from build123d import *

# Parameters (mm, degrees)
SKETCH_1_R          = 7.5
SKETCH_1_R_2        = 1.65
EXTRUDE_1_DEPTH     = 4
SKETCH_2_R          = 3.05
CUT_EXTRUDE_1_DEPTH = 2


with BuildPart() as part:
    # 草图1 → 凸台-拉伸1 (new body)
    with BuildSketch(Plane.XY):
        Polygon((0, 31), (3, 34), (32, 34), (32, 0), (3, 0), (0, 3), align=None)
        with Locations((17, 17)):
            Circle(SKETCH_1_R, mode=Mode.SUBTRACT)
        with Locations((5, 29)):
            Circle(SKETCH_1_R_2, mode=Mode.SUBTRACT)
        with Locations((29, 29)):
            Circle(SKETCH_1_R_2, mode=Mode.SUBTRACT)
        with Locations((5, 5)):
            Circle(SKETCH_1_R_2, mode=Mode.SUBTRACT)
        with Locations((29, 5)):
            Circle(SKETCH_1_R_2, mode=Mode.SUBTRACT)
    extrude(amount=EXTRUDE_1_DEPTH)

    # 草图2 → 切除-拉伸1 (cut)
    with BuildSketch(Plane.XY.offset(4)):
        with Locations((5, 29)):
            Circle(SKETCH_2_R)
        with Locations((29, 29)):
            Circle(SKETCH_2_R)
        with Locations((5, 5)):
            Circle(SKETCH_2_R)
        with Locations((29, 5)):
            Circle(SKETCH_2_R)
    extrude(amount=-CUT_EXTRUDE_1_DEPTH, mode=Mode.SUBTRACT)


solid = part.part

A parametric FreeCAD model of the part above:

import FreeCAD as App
import Part
import Sketcher

V = App.Vector
Q = App.Units.Quantity

doc = App.newDocument("Part")
body = doc.addObject("PartDesign::Body", "Body")

# Sketch on XY plane
sketch1 = doc.addObject("Sketcher::SketchObject", "Sketch")
body.addObject(sketch1)
sketch1.AttachmentSupport = (doc.XY_Plane, [""])
sketch1.MapMode = "FlatFace"
sketch1.addGeometry(Part.LineSegment(V(3, 34, 0), V(0, 31, 0)), False)
sketch1.addGeometry(Part.LineSegment(V(0, 31, 0), V(0, 3, 0)), False)
sketch1.addGeometry(Part.LineSegment(V(0, 3, 0), V(3, 0, 0)), False)
sketch1.addGeometry(Part.LineSegment(V(3, 0, 0), V(32, 0, 0)), False)
sketch1.addGeometry(Part.LineSegment(V(32, 0, 0), V(32, 34, 0)), False)
sketch1.addGeometry(Part.LineSegment(V(32, 34, 0), V(3, 34, 0)), False)
sketch1.addGeometry(Part.Circle(V(29, 5, 0), V(0, 0, 1), 1.6), False)
sketch1.addGeometry(Part.Circle(V(5, 5, 0), V(0, 0, 1), 1.6), False)
sketch1.addGeometry(Part.Circle(V(17, 17, 0), V(0, 0, 1), 7.5), False)
sketch1.addGeometry(Part.Circle(V(29, 29, 0), V(0, 0, 1), 1.6), False)
sketch1.addGeometry(Part.Circle(V(5, 29, 0), V(0, 0, 1), 1.6), False)
sketch1.addConstraint(Sketcher.Constraint("Coincident", 0, 2, 1, 1))
sketch1.addConstraint(Sketcher.Constraint("Coincident", 1, 2, 2, 1))
sketch1.addConstraint(Sketcher.Constraint("Coincident", 2, 2, 3, 1))
sketch1.addConstraint(Sketcher.Constraint("Coincident", 3, 2, 4, 1))
sketch1.addConstraint(Sketcher.Constraint("Coincident", 4, 2, 5, 1))
sketch1.addConstraint(Sketcher.Constraint("Coincident", 5, 2, 0, 1))
sketch1.addConstraint(Sketcher.Constraint("Vertical", 1))
sketch1.addConstraint(Sketcher.Constraint("Horizontal", 3))
sketch1.addConstraint(Sketcher.Constraint("Vertical", 4))
sketch1.addConstraint(Sketcher.Constraint("Horizontal", 5))
sketch1.addConstraint(Sketcher.Constraint("Equal", 6, 7))
sketch1.addConstraint(Sketcher.Constraint("Equal", 7, 9))
sketch1.addConstraint(Sketcher.Constraint("Equal", 9, 10))
sketch1.addConstraint(Sketcher.Constraint("PointOnObject", 0, 2, -2))
sketch1.addConstraint(Sketcher.Constraint("PointOnObject", 2, 2, -1))
sketch1.addConstraint(Sketcher.Constraint("Perpendicular", 0, 2))
sketch1.addConstraint(Sketcher.Constraint("Horizontal", 6, 3, 7, 3))
sketch1.addConstraint(Sketcher.Constraint("Horizontal", 9, 3, 10, 3))
sketch1.addConstraint(Sketcher.Constraint("Vertical", 6, 3, 9, 3))
sketch1.addConstraint(Sketcher.Constraint("Vertical", 7, 3, 10, 3))
sketch1.addConstraint(Sketcher.Constraint("Vertical", 2, 2, 5, 2))
sketch1.addConstraint(Sketcher.Constraint("Equal", 0, 2))
sketch1.addConstraint(Sketcher.Constraint("Diameter", 8, Q("15 mm")))
sketch1.addConstraint(Sketcher.Constraint("Diameter", 6, Q("3.3 mm")))
sketch1.addConstraint(Sketcher.Constraint("DistanceX", 3, 1, 3, 2, Q("29 mm")))
sketch1.addConstraint(Sketcher.Constraint("DistanceY", 1, 2, 1, 1, Q("28 mm")))
sketch1.addConstraint(Sketcher.Constraint("DistanceY", 4, 1, 4, 2, Q("34 mm")))
sketch1.addConstraint(Sketcher.Constraint("DistanceX", -1, 1, 6, 3, Q("29 mm")))
sketch1.addConstraint(Sketcher.Constraint("DistanceY", -1, 1, 6, 3, Q("5 mm")))
sketch1.addConstraint(Sketcher.Constraint("DistanceX", -1, 1, 7, 3, Q("5 mm")))
sketch1.addConstraint(Sketcher.Constraint("DistanceX", -1, 1, 8, 3, Q("17 mm")))
sketch1.addConstraint(Sketcher.Constraint("DistanceY", -1, 1, 8, 3, Q("17 mm")))
sketch1.addConstraint(Sketcher.Constraint("DistanceY", -1, 1, 9, 3, Q("29 mm")))
pad1 = doc.addObject("PartDesign::Pad", "Pad")
body.addObject(pad1)
pad1.Profile = sketch1
pad1.Length = 4

# Sketch on XY plane
sketch2 = doc.addObject("Sketcher::SketchObject", "Sketch001")
body.addObject(sketch2)
sketch2.AttachmentSupport = (doc.XY_Plane, [""])
sketch2.MapMode = "FlatFace"
sketch2.AttachmentOffset = App.Placement(V(0, 0, 4), App.Rotation())
sketch2.addGeometry(Part.Circle(V(5, 29, 0), V(0, 0, 1), 3), False)
sketch2.addGeometry(Part.Circle(V(29, 29, 0), V(0, 0, 1), 3), False)
sketch2.addGeometry(Part.Circle(V(5, 5, 0), V(0, 0, 1), 3), False)
sketch2.addGeometry(Part.Circle(V(29, 5, 0), V(0, 0, 1), 3), False)
sketch2.addConstraint(Sketcher.Constraint("Equal", 0, 1))
sketch2.addConstraint(Sketcher.Constraint("Equal", 1, 2))
sketch2.addConstraint(Sketcher.Constraint("Equal", 2, 3))
sketch2.addConstraint(Sketcher.Constraint("Horizontal", 0, 3, 1, 3))
sketch2.addConstraint(Sketcher.Constraint("Horizontal", 2, 3, 3, 3))
sketch2.addConstraint(Sketcher.Constraint("Vertical", 0, 3, 2, 3))
sketch2.addConstraint(Sketcher.Constraint("Vertical", 1, 3, 3, 3))
sketch2.addConstraint(Sketcher.Constraint("Diameter", 0, Q("6.1 mm")))
sketch2.addConstraint(Sketcher.Constraint("DistanceX", -1, 1, 0, 3, Q("5 mm")))
sketch2.addConstraint(Sketcher.Constraint("DistanceY", -1, 1, 0, 3, Q("29 mm")))
sketch2.addConstraint(Sketcher.Constraint("DistanceX", -1, 1, 1, 3, Q("29 mm")))
sketch2.addConstraint(Sketcher.Constraint("DistanceY", -1, 1, 2, 3, Q("5 mm")))
pocket1 = doc.addObject("PartDesign::Pocket", "Pocket")
body.addObject(pocket1)
pocket1.Profile = sketch2
pocket1.Length = 2

doc.recompute()
